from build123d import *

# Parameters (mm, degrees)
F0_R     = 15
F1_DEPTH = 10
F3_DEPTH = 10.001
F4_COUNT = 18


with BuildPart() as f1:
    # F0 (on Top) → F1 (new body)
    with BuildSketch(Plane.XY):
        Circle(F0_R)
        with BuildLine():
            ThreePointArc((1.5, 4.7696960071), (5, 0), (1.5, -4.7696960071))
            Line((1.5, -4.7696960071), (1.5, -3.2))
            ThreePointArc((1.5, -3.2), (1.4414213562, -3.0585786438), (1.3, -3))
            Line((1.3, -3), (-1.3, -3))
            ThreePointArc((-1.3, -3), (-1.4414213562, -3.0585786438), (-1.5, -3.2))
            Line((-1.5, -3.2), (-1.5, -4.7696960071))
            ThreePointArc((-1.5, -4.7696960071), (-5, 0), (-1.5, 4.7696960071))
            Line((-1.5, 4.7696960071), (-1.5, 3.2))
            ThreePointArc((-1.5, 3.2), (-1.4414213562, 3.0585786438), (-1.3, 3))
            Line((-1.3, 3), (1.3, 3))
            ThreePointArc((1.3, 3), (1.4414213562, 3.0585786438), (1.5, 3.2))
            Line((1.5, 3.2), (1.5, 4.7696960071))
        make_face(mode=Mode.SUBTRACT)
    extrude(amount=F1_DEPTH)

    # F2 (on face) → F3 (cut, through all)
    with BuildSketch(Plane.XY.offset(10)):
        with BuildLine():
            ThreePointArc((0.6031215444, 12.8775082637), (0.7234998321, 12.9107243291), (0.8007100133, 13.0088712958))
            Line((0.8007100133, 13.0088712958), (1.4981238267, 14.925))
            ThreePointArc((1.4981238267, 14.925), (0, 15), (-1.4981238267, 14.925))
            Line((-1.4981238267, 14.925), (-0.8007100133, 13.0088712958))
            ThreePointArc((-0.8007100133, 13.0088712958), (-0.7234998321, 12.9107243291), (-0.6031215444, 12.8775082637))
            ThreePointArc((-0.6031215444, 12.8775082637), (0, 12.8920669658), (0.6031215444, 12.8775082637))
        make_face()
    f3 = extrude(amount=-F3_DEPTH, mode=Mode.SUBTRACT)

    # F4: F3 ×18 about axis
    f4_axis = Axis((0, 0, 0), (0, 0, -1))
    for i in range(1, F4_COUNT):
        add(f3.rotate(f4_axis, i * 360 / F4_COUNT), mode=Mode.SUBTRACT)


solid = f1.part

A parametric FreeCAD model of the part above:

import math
import FreeCAD as App
import Part
import Sketcher
from FreeCAD import Vector
Q = App.Units.Quantity

doc = App.newDocument("Part")
body = doc.addObject("PartDesign::Body", "Body")

# Sketch on XY plane
sketch1 = body.newObject("Sketcher::SketchObject", "Sketch")
sketch1.AttachmentSupport = (doc.getObject("XY_Plane"), [""])
sketch1.MapMode = "FlatFace"
sketch1.addGeometry(Part.Circle(Vector(0, 0, 0), Vector(0, 0, 1), 15), False)
sketch1.addGeometry(Part.LineSegment(Vector(1.5, 3.2, 0), Vector(1.5, 4.77, 0)), False)
sketch1.addGeometry(Part.ArcOfCircle(Part.Circle(Vector(0, 0, 0), Vector(0, 0, 1), 5), math.radians(-73), math.radians(73)), False)
sketch1.addGeometry(Part.LineSegment(Vector(1.5, -4.77, 0), Vector(1.5, -3.2, 0)), False)
sketch1.addGeometry(Part.ArcOfCircle(Part.Circle(Vector(1.3, -3.2, 0), Vector(0, 0, 1), 0.2), math.radians(0), math.radians(90)), False)
sketch1.addGeometry(Part.LineSegment(Vector(1.3, -3, 0), Vector(-1.3, -3, 0)), False)
sketch1.addGeometry(Part.ArcOfCircle(Part.Circle(Vector(-1.3, -3.2, 0), Vector(0, 0, 1), 0.2), math.radians(90), math.radians(180)), False)
sketch1.addGeometry(Part.LineSegment(Vector(-1.5, -3.2, 0), Vector(-1.5, -4.77, 0)), False)
sketch1.addGeometry(Part.ArcOfCircle(Part.Circle(Vector(0, 0, 0), Vector(0, 0, 1), 5), math.radians(107), math.radians(253)), False)
sketch1.addGeometry(Part.LineSegment(Vector(-1.5, 4.77, 0), Vector(-1.5, 3.2, 0)), False)
sketch1.addGeometry(Part.ArcOfCircle(Part.Circle(Vector(-1.3, 3.2, 0), Vector(0, 0, 1), 0.2), math.radians(180), math.radians(270)), False)
sketch1.addGeometry(Part.LineSegment(Vector(-1.3, 3, 0), Vector(1.3, 3, 0)), False)
sketch1.addGeometry(Part.ArcOfCircle(Part.Circle(Vector(1.3, 3.2, 0), Vector(0, 0, 1), 0.2), math.radians(-90), math.radians(0)), False)
sketch1.addConstraint(Sketcher.Constraint("Coincident", 1, 2, 2, 2))
sketch1.addConstraint(Sketcher.Constraint("Coincident", 2, 1, 3, 1))
sketch1.addConstraint(Sketcher.Constraint("Tangent", 3, 2, 4, 1))
sketch1.addConstraint(Sketcher.Constraint("Tangent", 4, 2, 5, 1))
sketch1.addConstraint(Sketcher.Constraint("Tangent", 5, 2, 6, 1))
sketch1.addConstraint(Sketcher.Constraint("Tangent", 6, 2, 7, 1))
sketch1.addConstraint(Sketcher.Constraint("Coincident", 7, 2, 8, 2))
sketch1.addConstraint(Sketcher.Constraint("Coincident", 8, 1, 9, 1))
sketch1.addConstraint(Sketcher.Constraint("Tangent", 9, 2, 10, 1))
sketch1.addConstraint(Sketcher.Constraint("Tangent", 10, 2, 11, 1))
sketch1.addConstraint(Sketcher.Constraint("Tangent", 11, 2, 12, 1))
sketch1.addConstraint(Sketcher.Constraint("Tangent", 12, 2, 1, 1))
sketch1.addConstraint(Sketcher.Constraint("Vertical", 1))
sketch1.addConstraint(Sketcher.Constraint("Vertical", 3))
sketch1.addConstraint(Sketcher.Constraint("Horizontal", 5))
sketch1.addConstraint(Sketcher.Constraint("Vertical", 7))
sketch1.addConstraint(Sketcher.Constraint("Vertical", 9))
sketch1.addConstraint(Sketcher.Constraint("Horizontal", 11))
sketch1.addConstraint(Sketcher.Constraint("Coincident", 0, 3, -1, 1))
sketch1.addConstraint(Sketcher.Constraint("Coincident", 2, 3, -1, 1))
sketch1.addConstraint(Sketcher.Constraint("Coincident", 8, 3, -1, 1))
sketch1.addConstraint(Sketcher.Constraint("Equal", 4, 6))
sketch1.addConstraint(Sketcher.Constraint("Equal", 2, 8))
sketch1.addConstraint(Sketcher.Constraint("Equal", 6, 10))
sketch1.addConstraint(Sketcher.Constraint("Equal", 10, 12))
sketch1.addConstraint(Sketcher.Constraint("Symmetric", 4, 3, 10, 3, -1, 1))
sketch1.addConstraint(Sketcher.Constraint("Horizontal", 2, 1, 7, 2))
sketch1.addConstraint(Sketcher.Constraint("Horizontal", 1, 2, 8, 1))
sketch1.addConstraint(Sketcher.Constraint("Diameter", 0, 30.0))
sketch1.addConstraint(Sketcher.Constraint("Radius", 2, 5.0))
sketch1.addConstraint(Sketcher.Constraint("Radius", 4, 0.2))
sketch1.addConstraint(Sketcher.Constraint("DistanceX", 5, 2, 5, 1, 2.6))
sketch1.addConstraint(Sketcher.Constraint("DistanceY", 4, 2, -1, 1, 3.0))
pad1 = body.newObject("PartDesign::Pad", "Pad")
pad1.Profile = sketch1
pad1.Length = 10

# Sketch on XY plane
sketch2 = body.newObject("Sketcher::SketchObject", "Sketch001")
sketch2.AttachmentSupport = (doc.getObject("XY_Plane"), [""])
sketch2.MapMode = "FlatFace"
sketch2.AttachmentOffset = App.Placement(Vector(0, 0, 10), App.Rotation())
sketch2.addGeometry(Part.ArcOfCircle(Part.Circle(Vector(0.61, 13.08, 0), Vector(0, 0, 1), 0.2), math.radians(-93), math.radians(-20)), False)
sketch2.addGeometry(Part.LineSegment(Vector(0.8, 13.01, 0), Vector(1.5, 14.93, 0)), False)
sketch2.addGeometry(Part.ArcOfCircle(Part.Circle(Vector(0, 0, 0), Vector(0, 0, 1), 15), math.radians(84.27), math.radians(95.73)), False)
sketch2.addGeometry(Part.LineSegment(Vector(-1.5, 14.93, 0), Vector(-0.8, 13.01, 0)), False)
sketch2.addGeometry(Part.ArcOfCircle(Part.Circle(Vector(-0.61, 13.08, 0), Vector(0, 0, 1), 0.2), math.radians(-160), math.radians(-87)), False)
sketch2.addGeometry(Part.ArcOfCircle(Part.Circle(Vector(0, 0.39, 0), Vector(0, 0, 1), 12.5), math.radians(87.23), math.radians(92.77)), False)
sketch2.addConstraint(Sketcher.Constraint("Tangent", 0, 2, 1, 1))
sketch2.addConstraint(Sketcher.Constraint("Coincident", 1, 2, 2, 1))
sketch2.addConstraint(Sketcher.Constraint("Coincident", 2, 2, 3, 1))
sketch2.addConstraint(Sketcher.Constraint("Tangent", 3, 2, 4, 1))
sketch2.addConstraint(Sketcher.Constraint("Tangent", 4, 2, 5, 2))
sketch2.addConstraint(Sketcher.Constraint("Tangent", 5, 1, 0, 1))
sketch2.addConstraint(Sketcher.Constraint("Coincident", 2, 3, -1, 1))
sketch2.addConstraint(Sketcher.Constraint("Equal", 0, 4))
sketch2.addConstraint(Sketcher.Constraint("Symmetric", 0, 3, 4, 3, -2))
sketch2.addConstraint(Sketcher.Constraint("Horizontal", 1, 2, 2, 2))
sketch2.addConstraint(Sketcher.Constraint("Radius", 2, 15.0))
sketch2.addConstraint(Sketcher.Constraint("Radius", 0, 0.2))
sketch2.addConstraint(Sketcher.Constraint("Radius", 5, 12.5))
sketch2.addConstraint(Sketcher.Constraint("Angle", 1, Q("70 deg")))
sketch2.addConstraint(Sketcher.Constraint("DistanceY", -1, 1, 1, 2, 14.925))
sketch2.addConstraint(Sketcher.Constraint("Distance", 1, 2.039102))
pocket1 = body.newObject("PartDesign::Pocket", "Pocket")
pocket1.Profile = sketch2
pocket1.Type = "ThroughAll"
doc.recompute()

polarpattern = body.newObject("PartDesign::PolarPattern", "PolarPattern")
polarpattern.Originals = [pocket1]
polarpattern.Axis = (doc.getObject("Z_Axis"), [""])
polarpattern.Angle = 360
polarpattern.Occurrences = 18
body.Tip = polarpattern

doc.recompute()
